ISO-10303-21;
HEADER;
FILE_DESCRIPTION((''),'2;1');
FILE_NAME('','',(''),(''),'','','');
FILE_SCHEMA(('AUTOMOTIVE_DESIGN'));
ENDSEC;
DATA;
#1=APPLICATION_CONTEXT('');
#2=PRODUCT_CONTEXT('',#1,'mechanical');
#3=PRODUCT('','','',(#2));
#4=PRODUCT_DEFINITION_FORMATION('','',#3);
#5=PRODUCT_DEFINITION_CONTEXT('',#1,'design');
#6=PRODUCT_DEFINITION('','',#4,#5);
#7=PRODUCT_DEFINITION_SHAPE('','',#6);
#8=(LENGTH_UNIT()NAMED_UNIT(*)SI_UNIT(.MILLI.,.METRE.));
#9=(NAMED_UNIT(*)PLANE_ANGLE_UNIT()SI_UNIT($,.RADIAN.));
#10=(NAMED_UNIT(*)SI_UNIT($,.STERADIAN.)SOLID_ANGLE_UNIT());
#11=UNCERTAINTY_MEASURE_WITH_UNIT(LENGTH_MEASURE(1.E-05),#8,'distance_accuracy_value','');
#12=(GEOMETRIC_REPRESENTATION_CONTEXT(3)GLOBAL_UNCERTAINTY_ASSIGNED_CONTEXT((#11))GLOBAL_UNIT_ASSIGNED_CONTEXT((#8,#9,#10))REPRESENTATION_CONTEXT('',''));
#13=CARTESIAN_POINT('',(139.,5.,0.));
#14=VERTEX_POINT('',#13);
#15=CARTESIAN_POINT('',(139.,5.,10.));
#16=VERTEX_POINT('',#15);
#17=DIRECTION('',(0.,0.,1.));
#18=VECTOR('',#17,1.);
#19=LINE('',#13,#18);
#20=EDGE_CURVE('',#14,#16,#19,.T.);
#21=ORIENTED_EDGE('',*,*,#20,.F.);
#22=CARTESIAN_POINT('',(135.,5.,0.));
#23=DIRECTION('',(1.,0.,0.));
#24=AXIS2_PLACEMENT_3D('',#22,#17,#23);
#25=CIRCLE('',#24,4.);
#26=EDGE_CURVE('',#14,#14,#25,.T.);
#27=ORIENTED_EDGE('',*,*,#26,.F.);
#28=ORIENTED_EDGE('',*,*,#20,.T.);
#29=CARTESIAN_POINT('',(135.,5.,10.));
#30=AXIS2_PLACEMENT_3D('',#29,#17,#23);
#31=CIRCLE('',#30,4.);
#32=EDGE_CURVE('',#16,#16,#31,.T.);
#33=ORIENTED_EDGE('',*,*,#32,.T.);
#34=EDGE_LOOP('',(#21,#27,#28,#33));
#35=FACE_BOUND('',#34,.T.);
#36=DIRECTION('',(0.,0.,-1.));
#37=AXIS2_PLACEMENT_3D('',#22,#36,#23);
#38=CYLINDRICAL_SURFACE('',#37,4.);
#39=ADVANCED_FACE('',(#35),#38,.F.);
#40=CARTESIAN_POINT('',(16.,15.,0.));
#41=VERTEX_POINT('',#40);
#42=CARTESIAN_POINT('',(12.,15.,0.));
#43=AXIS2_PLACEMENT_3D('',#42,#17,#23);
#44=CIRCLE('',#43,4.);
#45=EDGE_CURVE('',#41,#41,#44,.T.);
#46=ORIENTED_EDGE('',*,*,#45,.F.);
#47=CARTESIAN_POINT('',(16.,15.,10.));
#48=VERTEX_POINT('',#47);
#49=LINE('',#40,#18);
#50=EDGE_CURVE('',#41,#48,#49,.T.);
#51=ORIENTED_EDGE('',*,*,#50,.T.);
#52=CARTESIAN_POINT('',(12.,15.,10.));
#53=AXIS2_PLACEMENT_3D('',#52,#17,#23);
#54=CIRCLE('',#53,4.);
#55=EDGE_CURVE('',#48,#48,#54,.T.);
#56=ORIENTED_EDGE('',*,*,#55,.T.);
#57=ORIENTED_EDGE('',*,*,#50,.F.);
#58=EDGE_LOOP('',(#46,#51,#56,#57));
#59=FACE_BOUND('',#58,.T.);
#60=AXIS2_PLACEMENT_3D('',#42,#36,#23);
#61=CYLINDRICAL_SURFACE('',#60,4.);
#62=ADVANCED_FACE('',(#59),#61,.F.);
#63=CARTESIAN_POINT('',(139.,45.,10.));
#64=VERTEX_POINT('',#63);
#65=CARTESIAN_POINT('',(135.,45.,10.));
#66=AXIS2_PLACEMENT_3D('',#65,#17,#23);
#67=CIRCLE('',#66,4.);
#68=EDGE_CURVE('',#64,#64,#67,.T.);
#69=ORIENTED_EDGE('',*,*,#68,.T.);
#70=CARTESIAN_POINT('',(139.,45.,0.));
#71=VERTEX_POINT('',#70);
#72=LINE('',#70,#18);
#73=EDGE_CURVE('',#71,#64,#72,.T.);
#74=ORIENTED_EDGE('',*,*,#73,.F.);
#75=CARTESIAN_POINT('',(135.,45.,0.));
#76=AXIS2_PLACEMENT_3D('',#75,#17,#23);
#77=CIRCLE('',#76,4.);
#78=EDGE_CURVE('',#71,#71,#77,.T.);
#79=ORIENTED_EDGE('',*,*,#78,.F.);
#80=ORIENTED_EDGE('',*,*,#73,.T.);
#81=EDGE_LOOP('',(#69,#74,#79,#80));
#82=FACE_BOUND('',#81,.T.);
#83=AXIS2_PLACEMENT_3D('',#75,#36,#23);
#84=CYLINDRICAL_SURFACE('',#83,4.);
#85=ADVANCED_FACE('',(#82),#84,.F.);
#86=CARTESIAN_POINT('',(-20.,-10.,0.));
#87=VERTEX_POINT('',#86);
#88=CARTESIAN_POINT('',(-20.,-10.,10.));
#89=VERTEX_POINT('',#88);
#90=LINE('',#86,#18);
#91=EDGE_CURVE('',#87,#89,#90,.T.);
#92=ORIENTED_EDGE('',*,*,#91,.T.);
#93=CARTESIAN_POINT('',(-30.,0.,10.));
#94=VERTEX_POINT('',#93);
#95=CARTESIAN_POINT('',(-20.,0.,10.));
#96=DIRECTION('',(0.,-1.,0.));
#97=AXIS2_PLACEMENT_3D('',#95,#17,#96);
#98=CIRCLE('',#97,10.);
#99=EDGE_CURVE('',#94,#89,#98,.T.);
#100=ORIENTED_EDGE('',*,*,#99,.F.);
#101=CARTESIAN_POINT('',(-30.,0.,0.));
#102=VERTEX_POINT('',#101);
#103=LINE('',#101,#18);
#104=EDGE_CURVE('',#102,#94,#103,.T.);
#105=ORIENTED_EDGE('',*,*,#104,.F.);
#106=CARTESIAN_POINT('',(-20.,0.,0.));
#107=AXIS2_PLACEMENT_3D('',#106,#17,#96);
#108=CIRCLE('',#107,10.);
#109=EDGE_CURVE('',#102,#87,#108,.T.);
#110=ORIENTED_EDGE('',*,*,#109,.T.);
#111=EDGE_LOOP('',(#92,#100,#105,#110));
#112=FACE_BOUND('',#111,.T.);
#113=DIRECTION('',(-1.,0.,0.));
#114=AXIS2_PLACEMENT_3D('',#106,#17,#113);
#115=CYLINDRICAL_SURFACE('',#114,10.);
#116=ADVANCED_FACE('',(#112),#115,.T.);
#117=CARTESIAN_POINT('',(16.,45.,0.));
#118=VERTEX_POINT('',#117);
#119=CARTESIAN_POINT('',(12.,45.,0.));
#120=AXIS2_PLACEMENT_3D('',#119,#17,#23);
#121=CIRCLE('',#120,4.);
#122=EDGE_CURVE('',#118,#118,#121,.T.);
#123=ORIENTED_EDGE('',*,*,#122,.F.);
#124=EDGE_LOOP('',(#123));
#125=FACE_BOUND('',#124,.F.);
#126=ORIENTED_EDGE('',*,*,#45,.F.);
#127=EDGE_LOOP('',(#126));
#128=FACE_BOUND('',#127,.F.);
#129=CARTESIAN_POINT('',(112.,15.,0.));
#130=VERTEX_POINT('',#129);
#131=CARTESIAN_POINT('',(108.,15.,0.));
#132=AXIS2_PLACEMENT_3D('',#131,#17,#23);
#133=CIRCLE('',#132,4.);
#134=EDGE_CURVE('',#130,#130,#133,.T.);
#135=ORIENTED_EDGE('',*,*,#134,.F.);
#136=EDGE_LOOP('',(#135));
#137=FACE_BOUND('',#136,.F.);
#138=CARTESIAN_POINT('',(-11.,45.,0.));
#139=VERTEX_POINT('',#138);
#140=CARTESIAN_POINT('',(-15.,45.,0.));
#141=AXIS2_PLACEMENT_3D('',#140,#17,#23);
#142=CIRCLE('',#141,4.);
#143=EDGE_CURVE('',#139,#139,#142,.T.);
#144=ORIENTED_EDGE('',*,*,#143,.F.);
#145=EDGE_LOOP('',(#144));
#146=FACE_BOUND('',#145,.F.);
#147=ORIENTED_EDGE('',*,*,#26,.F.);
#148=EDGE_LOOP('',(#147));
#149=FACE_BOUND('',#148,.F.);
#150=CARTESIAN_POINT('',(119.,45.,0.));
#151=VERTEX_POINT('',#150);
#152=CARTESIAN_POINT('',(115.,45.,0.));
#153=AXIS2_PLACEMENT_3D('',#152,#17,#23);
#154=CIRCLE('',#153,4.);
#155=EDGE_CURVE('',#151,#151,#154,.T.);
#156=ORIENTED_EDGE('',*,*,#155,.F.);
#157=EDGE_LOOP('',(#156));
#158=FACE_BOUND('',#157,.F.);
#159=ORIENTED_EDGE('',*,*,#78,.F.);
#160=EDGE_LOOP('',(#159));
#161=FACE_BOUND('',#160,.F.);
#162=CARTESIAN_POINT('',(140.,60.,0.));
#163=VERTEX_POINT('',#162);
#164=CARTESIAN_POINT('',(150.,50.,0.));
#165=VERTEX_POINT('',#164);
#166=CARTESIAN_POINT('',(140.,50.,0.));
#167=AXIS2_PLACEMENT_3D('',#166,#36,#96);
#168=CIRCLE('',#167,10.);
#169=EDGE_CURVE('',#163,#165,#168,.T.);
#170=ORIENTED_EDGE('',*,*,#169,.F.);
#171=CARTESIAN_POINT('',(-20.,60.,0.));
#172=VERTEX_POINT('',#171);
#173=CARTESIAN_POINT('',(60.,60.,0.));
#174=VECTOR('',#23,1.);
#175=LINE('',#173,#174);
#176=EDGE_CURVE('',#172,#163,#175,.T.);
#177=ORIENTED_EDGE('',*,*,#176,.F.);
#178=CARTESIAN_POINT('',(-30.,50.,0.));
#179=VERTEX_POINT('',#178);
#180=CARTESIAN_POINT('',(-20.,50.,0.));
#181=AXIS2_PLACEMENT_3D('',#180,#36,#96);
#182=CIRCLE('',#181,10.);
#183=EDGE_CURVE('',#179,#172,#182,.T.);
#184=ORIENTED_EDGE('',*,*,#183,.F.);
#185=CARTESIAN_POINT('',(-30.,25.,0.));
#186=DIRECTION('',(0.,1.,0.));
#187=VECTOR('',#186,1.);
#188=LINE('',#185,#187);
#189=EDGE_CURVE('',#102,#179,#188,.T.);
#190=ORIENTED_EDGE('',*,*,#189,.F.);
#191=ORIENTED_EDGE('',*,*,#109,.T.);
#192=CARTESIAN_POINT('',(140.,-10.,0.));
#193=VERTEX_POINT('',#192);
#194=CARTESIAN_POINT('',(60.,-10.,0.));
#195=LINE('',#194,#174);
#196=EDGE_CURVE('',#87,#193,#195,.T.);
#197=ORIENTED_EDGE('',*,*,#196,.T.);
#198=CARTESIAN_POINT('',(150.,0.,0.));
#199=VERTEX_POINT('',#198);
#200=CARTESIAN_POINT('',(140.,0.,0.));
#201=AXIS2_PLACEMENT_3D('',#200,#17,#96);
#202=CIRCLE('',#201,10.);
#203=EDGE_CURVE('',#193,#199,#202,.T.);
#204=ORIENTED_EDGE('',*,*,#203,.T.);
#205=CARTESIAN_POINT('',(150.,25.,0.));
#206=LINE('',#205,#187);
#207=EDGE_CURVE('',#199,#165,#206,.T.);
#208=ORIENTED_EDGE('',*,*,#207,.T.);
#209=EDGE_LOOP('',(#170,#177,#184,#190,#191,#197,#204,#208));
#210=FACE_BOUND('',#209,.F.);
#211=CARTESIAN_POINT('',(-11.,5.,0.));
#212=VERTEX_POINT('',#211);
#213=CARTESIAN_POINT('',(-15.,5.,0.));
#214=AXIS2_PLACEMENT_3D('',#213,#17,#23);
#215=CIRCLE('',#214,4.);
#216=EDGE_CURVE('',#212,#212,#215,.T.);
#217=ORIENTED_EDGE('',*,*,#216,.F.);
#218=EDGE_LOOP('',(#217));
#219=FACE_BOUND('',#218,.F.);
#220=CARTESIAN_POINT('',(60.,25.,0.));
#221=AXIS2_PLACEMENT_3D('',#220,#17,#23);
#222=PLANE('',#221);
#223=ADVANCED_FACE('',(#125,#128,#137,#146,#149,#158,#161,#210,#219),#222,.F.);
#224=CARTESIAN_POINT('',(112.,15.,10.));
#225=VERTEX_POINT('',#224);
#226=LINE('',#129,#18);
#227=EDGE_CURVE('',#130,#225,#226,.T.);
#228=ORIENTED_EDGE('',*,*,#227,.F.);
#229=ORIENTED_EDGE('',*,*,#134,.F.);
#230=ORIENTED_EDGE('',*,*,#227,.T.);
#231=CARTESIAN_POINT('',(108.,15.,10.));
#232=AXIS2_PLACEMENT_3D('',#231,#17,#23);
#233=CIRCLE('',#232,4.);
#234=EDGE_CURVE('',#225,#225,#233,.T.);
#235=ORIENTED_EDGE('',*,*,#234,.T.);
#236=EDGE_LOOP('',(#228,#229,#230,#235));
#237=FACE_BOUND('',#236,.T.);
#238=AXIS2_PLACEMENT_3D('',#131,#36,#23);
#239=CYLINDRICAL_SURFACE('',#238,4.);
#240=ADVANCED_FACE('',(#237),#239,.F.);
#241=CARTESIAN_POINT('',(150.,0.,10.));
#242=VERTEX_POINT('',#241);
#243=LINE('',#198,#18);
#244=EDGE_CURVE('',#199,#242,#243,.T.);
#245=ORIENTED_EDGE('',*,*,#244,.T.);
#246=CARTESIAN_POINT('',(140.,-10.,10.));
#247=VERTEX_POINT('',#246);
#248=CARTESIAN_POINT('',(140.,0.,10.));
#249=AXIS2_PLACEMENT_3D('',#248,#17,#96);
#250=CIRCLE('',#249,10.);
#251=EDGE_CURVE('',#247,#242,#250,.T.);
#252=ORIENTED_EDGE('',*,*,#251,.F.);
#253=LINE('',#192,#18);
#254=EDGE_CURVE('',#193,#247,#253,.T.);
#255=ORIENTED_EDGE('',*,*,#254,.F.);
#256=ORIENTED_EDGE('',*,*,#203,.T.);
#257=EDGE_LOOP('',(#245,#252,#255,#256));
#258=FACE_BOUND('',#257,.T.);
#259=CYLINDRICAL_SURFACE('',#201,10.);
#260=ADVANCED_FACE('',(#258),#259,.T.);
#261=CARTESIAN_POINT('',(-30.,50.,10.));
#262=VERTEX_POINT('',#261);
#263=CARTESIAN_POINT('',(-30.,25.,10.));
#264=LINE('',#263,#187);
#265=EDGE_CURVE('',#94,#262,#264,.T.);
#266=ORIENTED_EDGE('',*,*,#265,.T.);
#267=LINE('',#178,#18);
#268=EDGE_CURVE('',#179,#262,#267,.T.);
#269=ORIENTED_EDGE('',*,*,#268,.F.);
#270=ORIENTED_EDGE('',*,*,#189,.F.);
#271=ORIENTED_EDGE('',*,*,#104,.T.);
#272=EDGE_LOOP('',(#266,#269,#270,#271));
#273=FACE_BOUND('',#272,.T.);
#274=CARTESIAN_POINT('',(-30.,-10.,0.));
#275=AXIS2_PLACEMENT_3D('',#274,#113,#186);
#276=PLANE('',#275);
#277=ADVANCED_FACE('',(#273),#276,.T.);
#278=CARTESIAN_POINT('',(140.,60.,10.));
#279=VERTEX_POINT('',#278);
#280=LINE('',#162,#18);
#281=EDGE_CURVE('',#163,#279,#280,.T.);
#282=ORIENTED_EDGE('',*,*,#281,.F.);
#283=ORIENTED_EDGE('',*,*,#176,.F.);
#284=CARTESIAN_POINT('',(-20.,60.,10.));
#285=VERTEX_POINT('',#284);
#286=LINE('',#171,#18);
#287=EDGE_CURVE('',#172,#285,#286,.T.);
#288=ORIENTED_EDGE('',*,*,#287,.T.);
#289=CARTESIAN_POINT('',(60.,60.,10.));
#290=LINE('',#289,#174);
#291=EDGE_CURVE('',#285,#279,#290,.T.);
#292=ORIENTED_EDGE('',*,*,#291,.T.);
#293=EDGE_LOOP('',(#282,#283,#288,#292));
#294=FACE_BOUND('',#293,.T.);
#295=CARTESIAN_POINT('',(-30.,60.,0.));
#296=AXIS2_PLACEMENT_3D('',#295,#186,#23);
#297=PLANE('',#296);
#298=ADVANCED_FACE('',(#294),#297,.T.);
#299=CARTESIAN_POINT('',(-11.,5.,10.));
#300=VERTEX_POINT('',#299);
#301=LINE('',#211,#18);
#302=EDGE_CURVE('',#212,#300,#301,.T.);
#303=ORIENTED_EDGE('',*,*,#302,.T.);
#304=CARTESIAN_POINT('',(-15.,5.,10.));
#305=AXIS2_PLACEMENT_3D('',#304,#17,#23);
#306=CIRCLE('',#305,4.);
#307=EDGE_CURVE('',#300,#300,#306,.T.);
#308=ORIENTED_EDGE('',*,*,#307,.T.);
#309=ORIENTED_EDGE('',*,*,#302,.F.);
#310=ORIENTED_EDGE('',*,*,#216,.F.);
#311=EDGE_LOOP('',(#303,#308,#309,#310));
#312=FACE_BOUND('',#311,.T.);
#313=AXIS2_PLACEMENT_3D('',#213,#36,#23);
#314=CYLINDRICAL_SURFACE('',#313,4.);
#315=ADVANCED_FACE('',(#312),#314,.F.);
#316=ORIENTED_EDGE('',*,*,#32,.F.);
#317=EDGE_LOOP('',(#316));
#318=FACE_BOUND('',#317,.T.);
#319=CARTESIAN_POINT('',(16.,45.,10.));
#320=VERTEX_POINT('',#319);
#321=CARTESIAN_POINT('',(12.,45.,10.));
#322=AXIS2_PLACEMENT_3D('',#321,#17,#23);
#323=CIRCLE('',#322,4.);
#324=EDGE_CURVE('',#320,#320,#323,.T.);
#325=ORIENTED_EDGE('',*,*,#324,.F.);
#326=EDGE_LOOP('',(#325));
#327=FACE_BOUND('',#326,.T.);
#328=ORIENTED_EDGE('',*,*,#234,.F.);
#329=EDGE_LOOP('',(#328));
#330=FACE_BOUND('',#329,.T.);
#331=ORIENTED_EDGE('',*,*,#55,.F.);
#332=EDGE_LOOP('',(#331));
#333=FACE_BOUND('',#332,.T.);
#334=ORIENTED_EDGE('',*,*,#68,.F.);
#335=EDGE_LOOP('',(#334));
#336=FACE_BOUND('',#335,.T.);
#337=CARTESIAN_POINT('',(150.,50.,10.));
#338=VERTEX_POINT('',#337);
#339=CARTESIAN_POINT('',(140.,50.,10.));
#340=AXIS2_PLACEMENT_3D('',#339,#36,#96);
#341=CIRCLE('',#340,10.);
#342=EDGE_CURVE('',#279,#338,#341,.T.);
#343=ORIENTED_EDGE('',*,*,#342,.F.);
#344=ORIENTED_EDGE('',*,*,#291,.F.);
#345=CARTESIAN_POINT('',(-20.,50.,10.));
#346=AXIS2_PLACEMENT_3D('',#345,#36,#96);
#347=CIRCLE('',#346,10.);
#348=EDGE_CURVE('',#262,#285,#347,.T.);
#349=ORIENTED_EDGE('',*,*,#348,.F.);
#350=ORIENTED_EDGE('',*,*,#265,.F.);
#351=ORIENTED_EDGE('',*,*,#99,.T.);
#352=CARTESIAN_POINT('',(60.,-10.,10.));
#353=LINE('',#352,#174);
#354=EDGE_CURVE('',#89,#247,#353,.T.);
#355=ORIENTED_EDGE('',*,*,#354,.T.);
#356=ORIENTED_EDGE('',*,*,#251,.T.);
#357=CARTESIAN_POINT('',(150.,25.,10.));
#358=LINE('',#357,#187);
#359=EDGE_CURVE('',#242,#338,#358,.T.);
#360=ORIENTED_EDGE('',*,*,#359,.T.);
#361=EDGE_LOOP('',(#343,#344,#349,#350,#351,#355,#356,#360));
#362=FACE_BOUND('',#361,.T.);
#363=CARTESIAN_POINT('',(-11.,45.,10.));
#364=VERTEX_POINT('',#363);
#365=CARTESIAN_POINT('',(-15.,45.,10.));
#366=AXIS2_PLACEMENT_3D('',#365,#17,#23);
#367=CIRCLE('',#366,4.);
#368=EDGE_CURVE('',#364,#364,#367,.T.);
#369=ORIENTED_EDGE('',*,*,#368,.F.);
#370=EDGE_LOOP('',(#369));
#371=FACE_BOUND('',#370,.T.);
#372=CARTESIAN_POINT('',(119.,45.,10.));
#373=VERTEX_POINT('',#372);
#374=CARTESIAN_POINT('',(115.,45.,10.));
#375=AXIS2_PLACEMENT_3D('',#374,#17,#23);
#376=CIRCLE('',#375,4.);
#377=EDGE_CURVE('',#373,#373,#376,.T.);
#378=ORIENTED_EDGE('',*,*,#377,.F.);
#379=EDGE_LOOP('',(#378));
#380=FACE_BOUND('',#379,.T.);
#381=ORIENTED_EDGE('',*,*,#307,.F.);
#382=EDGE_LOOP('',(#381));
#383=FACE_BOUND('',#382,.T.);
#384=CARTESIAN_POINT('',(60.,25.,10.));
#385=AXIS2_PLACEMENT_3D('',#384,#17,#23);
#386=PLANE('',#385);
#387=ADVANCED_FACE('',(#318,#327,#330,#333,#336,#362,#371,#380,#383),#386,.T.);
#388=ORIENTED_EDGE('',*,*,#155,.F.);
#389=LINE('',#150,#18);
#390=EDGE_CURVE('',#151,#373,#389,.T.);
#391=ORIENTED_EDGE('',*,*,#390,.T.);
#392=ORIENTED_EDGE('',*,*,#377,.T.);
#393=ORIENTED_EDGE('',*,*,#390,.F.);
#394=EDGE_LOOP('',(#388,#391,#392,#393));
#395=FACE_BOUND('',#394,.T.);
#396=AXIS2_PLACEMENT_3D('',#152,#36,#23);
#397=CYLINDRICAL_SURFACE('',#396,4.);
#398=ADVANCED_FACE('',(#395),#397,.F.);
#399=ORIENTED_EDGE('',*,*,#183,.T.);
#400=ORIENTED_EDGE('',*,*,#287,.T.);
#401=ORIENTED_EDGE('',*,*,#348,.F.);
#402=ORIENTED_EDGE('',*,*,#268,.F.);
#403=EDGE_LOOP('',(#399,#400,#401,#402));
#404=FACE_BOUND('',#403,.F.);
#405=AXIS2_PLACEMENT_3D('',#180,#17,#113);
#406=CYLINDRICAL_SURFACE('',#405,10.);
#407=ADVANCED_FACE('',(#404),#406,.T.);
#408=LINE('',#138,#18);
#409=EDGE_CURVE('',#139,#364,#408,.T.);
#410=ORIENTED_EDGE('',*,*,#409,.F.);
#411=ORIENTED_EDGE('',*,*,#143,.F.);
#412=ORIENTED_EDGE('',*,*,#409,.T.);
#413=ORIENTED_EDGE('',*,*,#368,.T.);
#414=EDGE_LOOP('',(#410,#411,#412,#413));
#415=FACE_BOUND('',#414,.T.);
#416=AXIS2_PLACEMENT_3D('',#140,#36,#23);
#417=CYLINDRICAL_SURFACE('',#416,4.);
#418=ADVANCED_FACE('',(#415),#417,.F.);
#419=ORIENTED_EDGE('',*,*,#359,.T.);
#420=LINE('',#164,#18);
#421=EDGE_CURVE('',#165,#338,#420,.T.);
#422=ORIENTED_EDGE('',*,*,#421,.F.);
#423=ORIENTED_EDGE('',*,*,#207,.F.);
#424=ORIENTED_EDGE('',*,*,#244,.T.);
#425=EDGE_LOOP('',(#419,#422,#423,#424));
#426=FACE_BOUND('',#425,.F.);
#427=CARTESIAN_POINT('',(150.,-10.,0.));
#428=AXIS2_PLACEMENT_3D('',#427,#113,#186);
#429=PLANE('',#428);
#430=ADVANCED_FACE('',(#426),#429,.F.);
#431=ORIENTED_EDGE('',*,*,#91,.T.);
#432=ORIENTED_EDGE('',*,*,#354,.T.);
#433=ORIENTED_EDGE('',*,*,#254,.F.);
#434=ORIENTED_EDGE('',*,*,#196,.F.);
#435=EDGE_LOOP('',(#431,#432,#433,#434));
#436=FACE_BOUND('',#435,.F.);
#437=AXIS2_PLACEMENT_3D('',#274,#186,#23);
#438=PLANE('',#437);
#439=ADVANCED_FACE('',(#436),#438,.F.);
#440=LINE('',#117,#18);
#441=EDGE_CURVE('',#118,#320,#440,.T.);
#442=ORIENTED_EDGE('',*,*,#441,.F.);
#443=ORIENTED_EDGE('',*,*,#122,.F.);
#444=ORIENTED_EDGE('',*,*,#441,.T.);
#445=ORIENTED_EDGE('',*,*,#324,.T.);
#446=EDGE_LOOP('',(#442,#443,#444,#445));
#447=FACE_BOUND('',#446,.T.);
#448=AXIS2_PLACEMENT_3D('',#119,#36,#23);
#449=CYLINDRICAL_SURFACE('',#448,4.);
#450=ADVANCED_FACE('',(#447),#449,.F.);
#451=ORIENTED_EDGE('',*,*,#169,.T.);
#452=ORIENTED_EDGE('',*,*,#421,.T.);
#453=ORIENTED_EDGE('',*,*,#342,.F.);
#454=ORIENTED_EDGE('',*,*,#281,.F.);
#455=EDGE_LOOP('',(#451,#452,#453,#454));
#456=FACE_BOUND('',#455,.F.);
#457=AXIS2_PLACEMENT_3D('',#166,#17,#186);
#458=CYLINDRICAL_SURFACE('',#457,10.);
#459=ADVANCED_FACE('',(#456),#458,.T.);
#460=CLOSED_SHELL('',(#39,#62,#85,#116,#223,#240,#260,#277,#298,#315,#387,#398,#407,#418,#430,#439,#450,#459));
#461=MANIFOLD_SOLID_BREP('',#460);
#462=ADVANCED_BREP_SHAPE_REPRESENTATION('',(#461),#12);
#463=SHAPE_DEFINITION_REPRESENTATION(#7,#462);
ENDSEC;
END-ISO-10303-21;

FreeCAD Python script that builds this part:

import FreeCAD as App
import Part
import Sketcher
Q = App.Units.Quantity


def edges_at(feature, points):
    """Names of the edges that pass closest to the given points."""
    edges = feature.Shape.Edges
    near = lambda p: min(range(len(edges)), key=lambda i: edges[i].distToShape(Part.Vertex(*p))[0])
    return sorted({f"Edge{near(p) + 1}" for p in points})


def add_polygon(sketch, points):
    """Adds a closed chain of lines whose ends are joined by coincident constraints."""
    first, n = sketch.GeometryCount, len(points)
    for a, b in zip(points, points[1:] + points[:1]):
        sketch.addGeometry(Part.LineSegment(App.Vector(*a, 0), App.Vector(*b, 0)), False)
    for i in range(n):
        sketch.addConstraint(Sketcher.Constraint("Coincident", first + i, 2, first + (i + 1) % n, 1))

doc = App.newDocument("Part")
body = doc.addObject("PartDesign::Body", "Body")

sketch1 = body.newObject("Sketcher::SketchObject", "Sketch")
sketch1.AttachmentSupport = (doc.getObject("XY_Plane"), [""])
sketch1.MapMode = "FlatFace"
add_polygon(sketch1, [(-30, 60), (-30, -10), (150, -10), (150, 60)])
sketch1.addGeometry(Part.Circle(App.Vector(-15, 5, 0), App.Vector(0, 0, 1), 4), False)
sketch1.addGeometry(Part.Circle(App.Vector(12, 15, 0), App.Vector(0, 0, 1), 4), False)
sketch1.addGeometry(Part.Circle(App.Vector(135, 5, 0), App.Vector(0, 0, 1), 4), False)
sketch1.addGeometry(Part.Circle(App.Vector(108, 15, 0), App.Vector(0, 0, 1), 4), False)
sketch1.addGeometry(Part.Circle(App.Vector(-15, 45, 0), App.Vector(0, 0, 1), 4), False)
sketch1.addGeometry(Part.Circle(App.Vector(12, 45, 0), App.Vector(0, 0, 1), 4), False)
sketch1.addGeometry(Part.Circle(App.Vector(115, 45, 0), App.Vector(0, 0, 1), 4), False)
sketch1.addGeometry(Part.Circle(App.Vector(135, 45, 0), App.Vector(0, 0, 1), 4), False)
sketch1.addConstraint([
    Sketcher.Constraint("Vertical", 0),
    Sketcher.Constraint("Horizontal", 1),
    Sketcher.Constraint("Vertical", 2),
    Sketcher.Constraint("Horizontal", 3),
    Sketcher.Constraint("Equal", 4, 5),
    Sketcher.Constraint("Equal", 5, 6),
    Sketcher.Constraint("Equal", 6, 7),
    Sketcher.Constraint("Equal", 7, 8),
    Sketcher.Constraint("Equal", 8, 9),
    Sketcher.Constraint("Equal", 9, 10),
    Sketcher.Constraint("Equal", 10, 11),
    Sketcher.Constraint("Horizontal", 4, 3, 6, 3),
    Sketcher.Constraint("Horizontal", 5, 3, 7, 3),
    Sketcher.Constraint("Horizontal", 8, 3, 9, 3),
    Sketcher.Constraint("Horizontal", 9, 3, 10, 3),
    Sketcher.Constraint("Horizontal", 10, 3, 11, 3),
    Sketcher.Constraint("Vertical", 4, 3, 8, 3),
    Sketcher.Constraint("Vertical", 5, 3, 9, 3),
    Sketcher.Constraint("Vertical", 6, 3, 11, 3),
    Sketcher.Constraint("Diameter", 4, Q("8 mm")),
    Sketcher.Constraint("DistanceX", 1, 1, 1, 2, Q("180 mm")),
    Sketcher.Constraint("DistanceY", 0, 2, 0, 1, Q("70 mm")),
    Sketcher.Constraint("DistanceX", 4, 3, -1, 1, Q("15 mm")),
    Sketcher.Constraint("DistanceY", -1, 1, 4, 3, Q("5 mm")),
    Sketcher.Constraint("DistanceX", -1, 1, 5, 3, Q("12 mm")),
    Sketcher.Constraint("DistanceY", -1, 1, 5, 3, Q("15 mm")),
    Sketcher.Constraint("DistanceX", -1, 1, 6, 3, Q("135 mm")),
    Sketcher.Constraint("DistanceX", -1, 1, 7, 3, Q("108 mm")),
    Sketcher.Constraint("DistanceY", -1, 1, 8, 3, Q("45 mm")),
    Sketcher.Constraint("DistanceX", -1, 1, 10, 3, Q("115 mm")),
    Sketcher.Constraint("DistanceX", 0, 2, -1, 1, Q("30 mm")),
    Sketcher.Constraint("DistanceY", 0, 2, -1, 1, Q("10 mm")),
])
pad1 = body.newObject("PartDesign::Pad", "Pad")
pad1.Profile = sketch1
pad1.Length = 10
doc.recompute()

fillet = body.newObject("PartDesign::Fillet", "Fillet")
fillet.Base = (pad1, edges_at(pad1, [
    (-30, -10, 5),
    (-30, 60, 5),
    (150, -10, 5),
    (150, 60, 5),
]))
fillet.Radius = 10

doc.recompute()
